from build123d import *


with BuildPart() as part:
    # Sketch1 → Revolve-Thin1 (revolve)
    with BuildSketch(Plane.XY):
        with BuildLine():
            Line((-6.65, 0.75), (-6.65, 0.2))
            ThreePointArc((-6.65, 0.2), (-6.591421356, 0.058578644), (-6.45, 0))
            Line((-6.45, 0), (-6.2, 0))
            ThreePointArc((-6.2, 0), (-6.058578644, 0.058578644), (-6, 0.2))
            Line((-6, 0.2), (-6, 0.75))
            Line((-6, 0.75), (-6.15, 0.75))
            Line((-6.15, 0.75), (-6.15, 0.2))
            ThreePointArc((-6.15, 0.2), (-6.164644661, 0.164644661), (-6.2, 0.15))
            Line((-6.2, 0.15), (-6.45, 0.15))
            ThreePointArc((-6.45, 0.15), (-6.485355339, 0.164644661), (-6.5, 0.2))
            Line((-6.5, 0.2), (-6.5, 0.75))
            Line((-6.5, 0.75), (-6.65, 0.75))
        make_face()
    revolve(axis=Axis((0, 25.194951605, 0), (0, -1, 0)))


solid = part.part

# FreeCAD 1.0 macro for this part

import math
import FreeCAD as App
import Part
import Sketcher
from FreeCAD import Vector

doc = App.newDocument("Part")
body = doc.addObject("PartDesign::Body", "Body")

sketch1 = body.newObject("Sketcher::SketchObject", "Sketch")
sketch1.AttachmentSupport = (doc.getObject("XY_Plane"), [""])
sketch1.MapMode = "FlatFace"
sketch1.addGeometry([
    Part.LineSegment(Vector(-6.65, 0.75, 0), Vector(-6.65, 0.2, 0)),
    Part.ArcOfCircle(Part.Circle(Vector(-6.45, 0.2, 0), Vector(0, 0, 1), 0.2), math.radians(-180), math.radians(-90)),
    Part.LineSegment(Vector(-6.45, 0, 0), Vector(-6.2, 0, 0)),
    Part.ArcOfCircle(Part.Circle(Vector(-6.2, 0.2, 0), Vector(0, 0, 1), 0.2), math.radians(-90), math.radians(0)),
    Part.LineSegment(Vector(-6, 0.2, 0), Vector(-6, 0.75, 0)),
    Part.LineSegment(Vector(-6, 0.75, 0), Vector(-6.15, 0.75, 0)),
    Part.LineSegment(Vector(-6.15, 0.75, 0), Vector(-6.15, 0.2, 0)),
    Part.ArcOfCircle(Part.Circle(Vector(-6.2, 0.2, 0), Vector(0, 0, 1), 0.05), math.radians(-90), math.radians(0)),
    Part.LineSegment(Vector(-6.2, 0.15, 0), Vector(-6.45, 0.15, 0)),
    Part.ArcOfCircle(Part.Circle(Vector(-6.45, 0.2, 0), Vector(0, 0, 1), 0.05), math.radians(180), math.radians(270)),
    Part.LineSegment(Vector(-6.5, 0.2, 0), Vector(-6.5, 0.75, 0)),
    Part.LineSegment(Vector(-6.5, 0.75, 0), Vector(-6.65, 0.75, 0)),
], False)
sketch1.addConstraint([
    Sketcher.Constraint("Tangent", 0, 2, 1, 1),
    Sketcher.Constraint("Tangent", 1, 2, 2, 1),
    Sketcher.Constraint("Tangent", 2, 2, 3, 1),
    Sketcher.Constraint("Tangent", 3, 2, 4, 1),
    Sketcher.Constraint("Coincident", 4, 2, 5, 1),
    Sketcher.Constraint("Coincident", 5, 2, 6, 1),
    Sketcher.Constraint("Tangent", 6, 2, 7, 2),
    Sketcher.Constraint("Tangent", 7, 1, 8, 1),
    Sketcher.Constraint("Tangent", 8, 2, 9, 2),
    Sketcher.Constraint("Tangent", 9, 1, 10, 1),
    Sketcher.Constraint("Coincident", 10, 2, 11, 1),
    Sketcher.Constraint("Coincident", 11, 2, 0, 1),
    Sketcher.Constraint("Vertical", 0),
    Sketcher.Constraint("Horizontal", 2),
    Sketcher.Constraint("Vertical", 4),
    Sketcher.Constraint("Horizontal", 5),
    Sketcher.Constraint("Vertical", 6),
    Sketcher.Constraint("Horizontal", 8),
    Sketcher.Constraint("Vertical", 10),
    Sketcher.Constraint("Horizontal", 11),
    Sketcher.Constraint("Coincident", 7, 3, 3, 3),
    Sketcher.Constraint("Coincident", 9, 3, 1, 3),
    Sketcher.Constraint("Equal", 1, 3),
    Sketcher.Constraint("PointOnObject", 1, 2, -1),
    Sketcher.Constraint("Horizontal", 5, 2, 10, 2),
    Sketcher.Constraint("Radius", 1, 0.2),
    Sketcher.Constraint("Radius", 7, 0.05),
    Sketcher.Constraint("DistanceX", 3, 2, -1, 1, 6.0),
    Sketcher.Constraint("DistanceX", 2, 1, 2, 2, 0.25),
    Sketcher.Constraint("DistanceY", 0, 2, 0, 1, 0.55),
])
revolution = body.newObject("PartDesign::Revolution", "Revolution")
revolution.Profile = sketch1
revolution.ReferenceAxis = (sketch1, ["V_Axis"])
revolution.Angle = 360

doc.recompute()
